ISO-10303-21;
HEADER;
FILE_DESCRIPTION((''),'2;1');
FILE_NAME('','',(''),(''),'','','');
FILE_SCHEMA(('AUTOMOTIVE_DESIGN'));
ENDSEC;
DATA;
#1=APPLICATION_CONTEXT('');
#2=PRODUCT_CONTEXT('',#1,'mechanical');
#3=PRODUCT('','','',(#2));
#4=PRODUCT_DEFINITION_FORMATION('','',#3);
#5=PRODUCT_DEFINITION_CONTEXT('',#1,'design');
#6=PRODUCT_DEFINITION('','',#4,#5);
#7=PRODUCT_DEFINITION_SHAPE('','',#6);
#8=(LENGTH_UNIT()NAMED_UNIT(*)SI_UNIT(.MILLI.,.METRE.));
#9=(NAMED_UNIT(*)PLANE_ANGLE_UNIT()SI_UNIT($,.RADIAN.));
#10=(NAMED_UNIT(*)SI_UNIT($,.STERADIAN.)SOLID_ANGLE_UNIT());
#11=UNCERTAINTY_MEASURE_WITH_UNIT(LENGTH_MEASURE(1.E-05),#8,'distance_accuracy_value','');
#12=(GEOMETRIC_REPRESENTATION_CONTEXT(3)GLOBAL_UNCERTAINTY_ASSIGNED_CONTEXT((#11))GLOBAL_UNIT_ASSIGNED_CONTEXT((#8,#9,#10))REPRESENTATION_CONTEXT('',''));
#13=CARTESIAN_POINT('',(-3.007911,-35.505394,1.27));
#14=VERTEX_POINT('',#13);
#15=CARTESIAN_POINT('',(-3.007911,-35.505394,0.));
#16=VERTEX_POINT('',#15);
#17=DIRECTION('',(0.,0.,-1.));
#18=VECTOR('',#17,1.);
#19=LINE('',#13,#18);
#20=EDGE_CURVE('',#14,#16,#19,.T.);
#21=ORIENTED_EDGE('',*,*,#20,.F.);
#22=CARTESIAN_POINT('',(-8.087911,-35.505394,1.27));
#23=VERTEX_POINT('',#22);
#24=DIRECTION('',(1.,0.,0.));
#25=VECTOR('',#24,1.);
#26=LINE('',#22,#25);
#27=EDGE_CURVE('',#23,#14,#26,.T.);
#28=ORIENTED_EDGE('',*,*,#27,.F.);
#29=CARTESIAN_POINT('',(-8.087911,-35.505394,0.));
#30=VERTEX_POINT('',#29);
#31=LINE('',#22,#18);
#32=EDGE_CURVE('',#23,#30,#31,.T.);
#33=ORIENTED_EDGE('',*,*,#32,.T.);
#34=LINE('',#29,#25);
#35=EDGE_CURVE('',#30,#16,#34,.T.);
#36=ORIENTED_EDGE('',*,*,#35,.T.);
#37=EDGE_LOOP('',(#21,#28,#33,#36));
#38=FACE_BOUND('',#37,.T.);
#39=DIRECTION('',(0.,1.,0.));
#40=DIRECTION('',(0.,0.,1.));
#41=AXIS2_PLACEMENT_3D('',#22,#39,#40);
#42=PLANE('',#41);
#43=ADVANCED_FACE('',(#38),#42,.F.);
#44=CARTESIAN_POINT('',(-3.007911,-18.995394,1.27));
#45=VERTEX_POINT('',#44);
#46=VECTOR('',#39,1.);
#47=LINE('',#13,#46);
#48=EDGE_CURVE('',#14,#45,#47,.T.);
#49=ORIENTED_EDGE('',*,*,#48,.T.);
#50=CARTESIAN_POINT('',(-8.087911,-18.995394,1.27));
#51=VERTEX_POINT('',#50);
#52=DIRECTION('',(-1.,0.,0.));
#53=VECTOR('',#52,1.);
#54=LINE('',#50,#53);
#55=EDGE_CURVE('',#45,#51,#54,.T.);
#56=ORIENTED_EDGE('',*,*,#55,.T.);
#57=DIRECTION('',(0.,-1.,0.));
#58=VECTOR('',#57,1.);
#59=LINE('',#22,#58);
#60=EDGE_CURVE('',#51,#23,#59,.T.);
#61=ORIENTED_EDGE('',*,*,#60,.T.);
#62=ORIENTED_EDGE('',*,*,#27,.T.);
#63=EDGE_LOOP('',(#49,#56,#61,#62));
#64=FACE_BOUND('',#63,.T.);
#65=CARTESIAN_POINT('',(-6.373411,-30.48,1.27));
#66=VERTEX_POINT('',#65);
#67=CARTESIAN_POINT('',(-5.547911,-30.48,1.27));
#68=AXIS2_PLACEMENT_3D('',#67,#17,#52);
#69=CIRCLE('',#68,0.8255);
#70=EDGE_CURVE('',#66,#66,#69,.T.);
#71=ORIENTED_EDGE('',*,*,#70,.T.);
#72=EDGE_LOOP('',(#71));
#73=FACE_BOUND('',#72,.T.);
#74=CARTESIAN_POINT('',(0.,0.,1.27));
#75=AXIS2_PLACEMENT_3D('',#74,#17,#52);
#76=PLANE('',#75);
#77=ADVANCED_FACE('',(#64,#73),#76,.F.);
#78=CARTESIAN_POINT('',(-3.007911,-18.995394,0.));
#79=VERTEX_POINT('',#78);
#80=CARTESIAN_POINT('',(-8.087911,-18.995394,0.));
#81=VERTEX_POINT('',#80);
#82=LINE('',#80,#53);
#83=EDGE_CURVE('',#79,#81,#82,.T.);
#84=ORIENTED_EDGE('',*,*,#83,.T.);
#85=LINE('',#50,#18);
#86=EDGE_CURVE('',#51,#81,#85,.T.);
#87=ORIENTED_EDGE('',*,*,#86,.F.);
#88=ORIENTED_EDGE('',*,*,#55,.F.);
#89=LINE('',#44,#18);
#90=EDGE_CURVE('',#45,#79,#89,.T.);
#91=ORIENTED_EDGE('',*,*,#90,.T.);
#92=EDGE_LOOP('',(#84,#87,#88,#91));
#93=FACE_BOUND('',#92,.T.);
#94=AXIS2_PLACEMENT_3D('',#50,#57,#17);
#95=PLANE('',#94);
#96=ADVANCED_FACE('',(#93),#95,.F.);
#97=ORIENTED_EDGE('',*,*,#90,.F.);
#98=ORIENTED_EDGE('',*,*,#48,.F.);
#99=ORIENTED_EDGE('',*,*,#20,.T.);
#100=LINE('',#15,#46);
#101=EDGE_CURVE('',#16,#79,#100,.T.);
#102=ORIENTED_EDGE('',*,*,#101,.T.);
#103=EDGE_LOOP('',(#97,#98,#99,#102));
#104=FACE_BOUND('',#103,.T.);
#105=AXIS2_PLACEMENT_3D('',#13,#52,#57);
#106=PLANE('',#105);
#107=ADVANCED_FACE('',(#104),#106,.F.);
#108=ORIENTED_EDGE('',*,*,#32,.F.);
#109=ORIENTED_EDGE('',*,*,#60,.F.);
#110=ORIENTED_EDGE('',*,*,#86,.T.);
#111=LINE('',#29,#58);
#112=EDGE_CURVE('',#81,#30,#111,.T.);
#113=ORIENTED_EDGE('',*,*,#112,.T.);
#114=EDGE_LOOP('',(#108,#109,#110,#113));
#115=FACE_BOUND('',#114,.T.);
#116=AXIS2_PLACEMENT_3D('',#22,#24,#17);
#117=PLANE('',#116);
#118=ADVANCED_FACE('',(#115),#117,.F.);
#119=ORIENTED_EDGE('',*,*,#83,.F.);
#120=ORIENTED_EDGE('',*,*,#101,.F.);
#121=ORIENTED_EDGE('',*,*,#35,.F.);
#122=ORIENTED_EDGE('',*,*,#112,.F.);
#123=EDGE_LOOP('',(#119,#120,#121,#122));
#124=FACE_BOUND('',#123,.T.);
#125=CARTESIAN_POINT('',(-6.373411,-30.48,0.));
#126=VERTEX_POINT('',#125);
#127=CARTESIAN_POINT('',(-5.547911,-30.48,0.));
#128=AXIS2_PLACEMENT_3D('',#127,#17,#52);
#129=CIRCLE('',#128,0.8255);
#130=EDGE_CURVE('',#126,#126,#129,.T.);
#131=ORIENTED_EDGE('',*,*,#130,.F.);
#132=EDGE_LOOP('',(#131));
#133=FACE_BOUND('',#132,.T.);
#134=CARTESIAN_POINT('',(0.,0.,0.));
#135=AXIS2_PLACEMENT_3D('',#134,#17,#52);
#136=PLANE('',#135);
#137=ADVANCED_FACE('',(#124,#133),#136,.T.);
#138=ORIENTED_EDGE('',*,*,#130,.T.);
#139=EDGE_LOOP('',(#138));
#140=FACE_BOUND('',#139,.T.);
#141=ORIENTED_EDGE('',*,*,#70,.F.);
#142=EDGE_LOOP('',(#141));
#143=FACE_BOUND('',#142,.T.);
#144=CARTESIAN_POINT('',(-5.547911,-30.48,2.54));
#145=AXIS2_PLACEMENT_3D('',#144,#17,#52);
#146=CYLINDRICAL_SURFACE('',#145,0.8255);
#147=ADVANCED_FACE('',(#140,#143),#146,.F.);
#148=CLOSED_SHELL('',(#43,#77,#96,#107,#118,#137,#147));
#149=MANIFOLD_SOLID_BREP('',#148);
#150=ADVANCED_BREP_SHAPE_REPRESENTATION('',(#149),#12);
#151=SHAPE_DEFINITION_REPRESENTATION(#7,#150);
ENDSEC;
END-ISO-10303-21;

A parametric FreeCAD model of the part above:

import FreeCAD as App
import Part
import Sketcher
from FreeCAD import Vector
Q = App.Units.Quantity


def add_polygon(sketch, points):
    """Adds a closed chain of lines whose ends are joined by coincident constraints."""
    first, n = sketch.GeometryCount, len(points)
    for a, b in zip(points, points[1:] + points[:1]):
        sketch.addGeometry(Part.LineSegment(App.Vector(*a, 0), App.Vector(*b, 0)), False)
    for i in range(n):
        sketch.addConstraint(Sketcher.Constraint("Coincident", first + i, 2, first + (i + 1) % n, 1))

doc = App.newDocument("Part")
params = doc.addObject("Spreadsheet::Sheet", "Params")
for row, (alias, value) in enumerate([
    ("sketch1_width", "0.2 in"),
    ("sketch1_height", "0.65 in"),
    ("pad1_length", "0.05 in"),
    ("sketch2_diameter", "0.065 in"),
    ("pocket1_length", "0.1 in"),
], start=1):
    params.set(f"A{row}", alias)
    params.set(f"B{row}", "=" + value)
    params.setAlias(f"B{row}", alias)

body = doc.addObject("PartDesign::Body", "Body")

sketch1 = body.newObject("Sketcher::SketchObject", "Sketch")
sketch1.AttachmentSupport = (doc.getObject("XY_Plane"), [""])
sketch1.MapMode = "FlatFace"
add_polygon(sketch1, [(-8, -19), (-8, -36), (-3, -36), (-3, -19)])
sketch1.addConstraint(Sketcher.Constraint("Vertical", 0))
sketch1.addConstraint(Sketcher.Constraint("Horizontal", 1))
sketch1.addConstraint(Sketcher.Constraint("Vertical", 2))
sketch1.addConstraint(Sketcher.Constraint("Horizontal", 3))
sketch1.addConstraint(Sketcher.Constraint("DistanceX", 1, 1, 1, 2, Q("0.2 in")))
sketch1.addConstraint(Sketcher.Constraint("DistanceY", 0, 2, 0, 1, Q("0.65 in")))
sketch1.addConstraint(Sketcher.Constraint("DistanceX", 0, 2, -1, 1, 8.087911))
sketch1.addConstraint(Sketcher.Constraint("DistanceY", 0, 2, -1, 1, 35.505394))
sketch1.setExpression("Constraints[8]", "Params.sketch1_width")
sketch1.setExpression("Constraints[9]", "Params.sketch1_height")
pad1 = body.newObject("PartDesign::Pad", "Pad")
pad1.Profile = sketch1
pad1.setExpression("Length", "Params.pad1_length")

sketch2 = body.newObject("Sketcher::SketchObject", "Sketch001")
sketch2.AttachmentSupport = (doc.getObject("XY_Plane"), [""])
sketch2.MapMode = "FlatFace"
sketch2.addGeometry(Part.Circle(Vector(-5.5, -30.5, 0), Vector(0, 0, 1), 0.8), False)
sketch2.addConstraint(Sketcher.Constraint("Diameter", 0, Q("0.065 in")))
sketch2.addConstraint(Sketcher.Constraint("DistanceY", 0, 3, -1, 1, Q("1.2 in")))
sketch2.addConstraint(Sketcher.Constraint("DistanceX", 0, 3, -1, 1, 5.547911))
sketch2.setExpression("Constraints[0]", "Params.sketch2_diameter")
pocket1 = body.newObject("PartDesign::Pocket", "Pocket")
pocket1.Profile = sketch2
pocket1.setExpression("Length", "Params.pocket1_length")
pocket1.Reversed = True

doc.recompute()
